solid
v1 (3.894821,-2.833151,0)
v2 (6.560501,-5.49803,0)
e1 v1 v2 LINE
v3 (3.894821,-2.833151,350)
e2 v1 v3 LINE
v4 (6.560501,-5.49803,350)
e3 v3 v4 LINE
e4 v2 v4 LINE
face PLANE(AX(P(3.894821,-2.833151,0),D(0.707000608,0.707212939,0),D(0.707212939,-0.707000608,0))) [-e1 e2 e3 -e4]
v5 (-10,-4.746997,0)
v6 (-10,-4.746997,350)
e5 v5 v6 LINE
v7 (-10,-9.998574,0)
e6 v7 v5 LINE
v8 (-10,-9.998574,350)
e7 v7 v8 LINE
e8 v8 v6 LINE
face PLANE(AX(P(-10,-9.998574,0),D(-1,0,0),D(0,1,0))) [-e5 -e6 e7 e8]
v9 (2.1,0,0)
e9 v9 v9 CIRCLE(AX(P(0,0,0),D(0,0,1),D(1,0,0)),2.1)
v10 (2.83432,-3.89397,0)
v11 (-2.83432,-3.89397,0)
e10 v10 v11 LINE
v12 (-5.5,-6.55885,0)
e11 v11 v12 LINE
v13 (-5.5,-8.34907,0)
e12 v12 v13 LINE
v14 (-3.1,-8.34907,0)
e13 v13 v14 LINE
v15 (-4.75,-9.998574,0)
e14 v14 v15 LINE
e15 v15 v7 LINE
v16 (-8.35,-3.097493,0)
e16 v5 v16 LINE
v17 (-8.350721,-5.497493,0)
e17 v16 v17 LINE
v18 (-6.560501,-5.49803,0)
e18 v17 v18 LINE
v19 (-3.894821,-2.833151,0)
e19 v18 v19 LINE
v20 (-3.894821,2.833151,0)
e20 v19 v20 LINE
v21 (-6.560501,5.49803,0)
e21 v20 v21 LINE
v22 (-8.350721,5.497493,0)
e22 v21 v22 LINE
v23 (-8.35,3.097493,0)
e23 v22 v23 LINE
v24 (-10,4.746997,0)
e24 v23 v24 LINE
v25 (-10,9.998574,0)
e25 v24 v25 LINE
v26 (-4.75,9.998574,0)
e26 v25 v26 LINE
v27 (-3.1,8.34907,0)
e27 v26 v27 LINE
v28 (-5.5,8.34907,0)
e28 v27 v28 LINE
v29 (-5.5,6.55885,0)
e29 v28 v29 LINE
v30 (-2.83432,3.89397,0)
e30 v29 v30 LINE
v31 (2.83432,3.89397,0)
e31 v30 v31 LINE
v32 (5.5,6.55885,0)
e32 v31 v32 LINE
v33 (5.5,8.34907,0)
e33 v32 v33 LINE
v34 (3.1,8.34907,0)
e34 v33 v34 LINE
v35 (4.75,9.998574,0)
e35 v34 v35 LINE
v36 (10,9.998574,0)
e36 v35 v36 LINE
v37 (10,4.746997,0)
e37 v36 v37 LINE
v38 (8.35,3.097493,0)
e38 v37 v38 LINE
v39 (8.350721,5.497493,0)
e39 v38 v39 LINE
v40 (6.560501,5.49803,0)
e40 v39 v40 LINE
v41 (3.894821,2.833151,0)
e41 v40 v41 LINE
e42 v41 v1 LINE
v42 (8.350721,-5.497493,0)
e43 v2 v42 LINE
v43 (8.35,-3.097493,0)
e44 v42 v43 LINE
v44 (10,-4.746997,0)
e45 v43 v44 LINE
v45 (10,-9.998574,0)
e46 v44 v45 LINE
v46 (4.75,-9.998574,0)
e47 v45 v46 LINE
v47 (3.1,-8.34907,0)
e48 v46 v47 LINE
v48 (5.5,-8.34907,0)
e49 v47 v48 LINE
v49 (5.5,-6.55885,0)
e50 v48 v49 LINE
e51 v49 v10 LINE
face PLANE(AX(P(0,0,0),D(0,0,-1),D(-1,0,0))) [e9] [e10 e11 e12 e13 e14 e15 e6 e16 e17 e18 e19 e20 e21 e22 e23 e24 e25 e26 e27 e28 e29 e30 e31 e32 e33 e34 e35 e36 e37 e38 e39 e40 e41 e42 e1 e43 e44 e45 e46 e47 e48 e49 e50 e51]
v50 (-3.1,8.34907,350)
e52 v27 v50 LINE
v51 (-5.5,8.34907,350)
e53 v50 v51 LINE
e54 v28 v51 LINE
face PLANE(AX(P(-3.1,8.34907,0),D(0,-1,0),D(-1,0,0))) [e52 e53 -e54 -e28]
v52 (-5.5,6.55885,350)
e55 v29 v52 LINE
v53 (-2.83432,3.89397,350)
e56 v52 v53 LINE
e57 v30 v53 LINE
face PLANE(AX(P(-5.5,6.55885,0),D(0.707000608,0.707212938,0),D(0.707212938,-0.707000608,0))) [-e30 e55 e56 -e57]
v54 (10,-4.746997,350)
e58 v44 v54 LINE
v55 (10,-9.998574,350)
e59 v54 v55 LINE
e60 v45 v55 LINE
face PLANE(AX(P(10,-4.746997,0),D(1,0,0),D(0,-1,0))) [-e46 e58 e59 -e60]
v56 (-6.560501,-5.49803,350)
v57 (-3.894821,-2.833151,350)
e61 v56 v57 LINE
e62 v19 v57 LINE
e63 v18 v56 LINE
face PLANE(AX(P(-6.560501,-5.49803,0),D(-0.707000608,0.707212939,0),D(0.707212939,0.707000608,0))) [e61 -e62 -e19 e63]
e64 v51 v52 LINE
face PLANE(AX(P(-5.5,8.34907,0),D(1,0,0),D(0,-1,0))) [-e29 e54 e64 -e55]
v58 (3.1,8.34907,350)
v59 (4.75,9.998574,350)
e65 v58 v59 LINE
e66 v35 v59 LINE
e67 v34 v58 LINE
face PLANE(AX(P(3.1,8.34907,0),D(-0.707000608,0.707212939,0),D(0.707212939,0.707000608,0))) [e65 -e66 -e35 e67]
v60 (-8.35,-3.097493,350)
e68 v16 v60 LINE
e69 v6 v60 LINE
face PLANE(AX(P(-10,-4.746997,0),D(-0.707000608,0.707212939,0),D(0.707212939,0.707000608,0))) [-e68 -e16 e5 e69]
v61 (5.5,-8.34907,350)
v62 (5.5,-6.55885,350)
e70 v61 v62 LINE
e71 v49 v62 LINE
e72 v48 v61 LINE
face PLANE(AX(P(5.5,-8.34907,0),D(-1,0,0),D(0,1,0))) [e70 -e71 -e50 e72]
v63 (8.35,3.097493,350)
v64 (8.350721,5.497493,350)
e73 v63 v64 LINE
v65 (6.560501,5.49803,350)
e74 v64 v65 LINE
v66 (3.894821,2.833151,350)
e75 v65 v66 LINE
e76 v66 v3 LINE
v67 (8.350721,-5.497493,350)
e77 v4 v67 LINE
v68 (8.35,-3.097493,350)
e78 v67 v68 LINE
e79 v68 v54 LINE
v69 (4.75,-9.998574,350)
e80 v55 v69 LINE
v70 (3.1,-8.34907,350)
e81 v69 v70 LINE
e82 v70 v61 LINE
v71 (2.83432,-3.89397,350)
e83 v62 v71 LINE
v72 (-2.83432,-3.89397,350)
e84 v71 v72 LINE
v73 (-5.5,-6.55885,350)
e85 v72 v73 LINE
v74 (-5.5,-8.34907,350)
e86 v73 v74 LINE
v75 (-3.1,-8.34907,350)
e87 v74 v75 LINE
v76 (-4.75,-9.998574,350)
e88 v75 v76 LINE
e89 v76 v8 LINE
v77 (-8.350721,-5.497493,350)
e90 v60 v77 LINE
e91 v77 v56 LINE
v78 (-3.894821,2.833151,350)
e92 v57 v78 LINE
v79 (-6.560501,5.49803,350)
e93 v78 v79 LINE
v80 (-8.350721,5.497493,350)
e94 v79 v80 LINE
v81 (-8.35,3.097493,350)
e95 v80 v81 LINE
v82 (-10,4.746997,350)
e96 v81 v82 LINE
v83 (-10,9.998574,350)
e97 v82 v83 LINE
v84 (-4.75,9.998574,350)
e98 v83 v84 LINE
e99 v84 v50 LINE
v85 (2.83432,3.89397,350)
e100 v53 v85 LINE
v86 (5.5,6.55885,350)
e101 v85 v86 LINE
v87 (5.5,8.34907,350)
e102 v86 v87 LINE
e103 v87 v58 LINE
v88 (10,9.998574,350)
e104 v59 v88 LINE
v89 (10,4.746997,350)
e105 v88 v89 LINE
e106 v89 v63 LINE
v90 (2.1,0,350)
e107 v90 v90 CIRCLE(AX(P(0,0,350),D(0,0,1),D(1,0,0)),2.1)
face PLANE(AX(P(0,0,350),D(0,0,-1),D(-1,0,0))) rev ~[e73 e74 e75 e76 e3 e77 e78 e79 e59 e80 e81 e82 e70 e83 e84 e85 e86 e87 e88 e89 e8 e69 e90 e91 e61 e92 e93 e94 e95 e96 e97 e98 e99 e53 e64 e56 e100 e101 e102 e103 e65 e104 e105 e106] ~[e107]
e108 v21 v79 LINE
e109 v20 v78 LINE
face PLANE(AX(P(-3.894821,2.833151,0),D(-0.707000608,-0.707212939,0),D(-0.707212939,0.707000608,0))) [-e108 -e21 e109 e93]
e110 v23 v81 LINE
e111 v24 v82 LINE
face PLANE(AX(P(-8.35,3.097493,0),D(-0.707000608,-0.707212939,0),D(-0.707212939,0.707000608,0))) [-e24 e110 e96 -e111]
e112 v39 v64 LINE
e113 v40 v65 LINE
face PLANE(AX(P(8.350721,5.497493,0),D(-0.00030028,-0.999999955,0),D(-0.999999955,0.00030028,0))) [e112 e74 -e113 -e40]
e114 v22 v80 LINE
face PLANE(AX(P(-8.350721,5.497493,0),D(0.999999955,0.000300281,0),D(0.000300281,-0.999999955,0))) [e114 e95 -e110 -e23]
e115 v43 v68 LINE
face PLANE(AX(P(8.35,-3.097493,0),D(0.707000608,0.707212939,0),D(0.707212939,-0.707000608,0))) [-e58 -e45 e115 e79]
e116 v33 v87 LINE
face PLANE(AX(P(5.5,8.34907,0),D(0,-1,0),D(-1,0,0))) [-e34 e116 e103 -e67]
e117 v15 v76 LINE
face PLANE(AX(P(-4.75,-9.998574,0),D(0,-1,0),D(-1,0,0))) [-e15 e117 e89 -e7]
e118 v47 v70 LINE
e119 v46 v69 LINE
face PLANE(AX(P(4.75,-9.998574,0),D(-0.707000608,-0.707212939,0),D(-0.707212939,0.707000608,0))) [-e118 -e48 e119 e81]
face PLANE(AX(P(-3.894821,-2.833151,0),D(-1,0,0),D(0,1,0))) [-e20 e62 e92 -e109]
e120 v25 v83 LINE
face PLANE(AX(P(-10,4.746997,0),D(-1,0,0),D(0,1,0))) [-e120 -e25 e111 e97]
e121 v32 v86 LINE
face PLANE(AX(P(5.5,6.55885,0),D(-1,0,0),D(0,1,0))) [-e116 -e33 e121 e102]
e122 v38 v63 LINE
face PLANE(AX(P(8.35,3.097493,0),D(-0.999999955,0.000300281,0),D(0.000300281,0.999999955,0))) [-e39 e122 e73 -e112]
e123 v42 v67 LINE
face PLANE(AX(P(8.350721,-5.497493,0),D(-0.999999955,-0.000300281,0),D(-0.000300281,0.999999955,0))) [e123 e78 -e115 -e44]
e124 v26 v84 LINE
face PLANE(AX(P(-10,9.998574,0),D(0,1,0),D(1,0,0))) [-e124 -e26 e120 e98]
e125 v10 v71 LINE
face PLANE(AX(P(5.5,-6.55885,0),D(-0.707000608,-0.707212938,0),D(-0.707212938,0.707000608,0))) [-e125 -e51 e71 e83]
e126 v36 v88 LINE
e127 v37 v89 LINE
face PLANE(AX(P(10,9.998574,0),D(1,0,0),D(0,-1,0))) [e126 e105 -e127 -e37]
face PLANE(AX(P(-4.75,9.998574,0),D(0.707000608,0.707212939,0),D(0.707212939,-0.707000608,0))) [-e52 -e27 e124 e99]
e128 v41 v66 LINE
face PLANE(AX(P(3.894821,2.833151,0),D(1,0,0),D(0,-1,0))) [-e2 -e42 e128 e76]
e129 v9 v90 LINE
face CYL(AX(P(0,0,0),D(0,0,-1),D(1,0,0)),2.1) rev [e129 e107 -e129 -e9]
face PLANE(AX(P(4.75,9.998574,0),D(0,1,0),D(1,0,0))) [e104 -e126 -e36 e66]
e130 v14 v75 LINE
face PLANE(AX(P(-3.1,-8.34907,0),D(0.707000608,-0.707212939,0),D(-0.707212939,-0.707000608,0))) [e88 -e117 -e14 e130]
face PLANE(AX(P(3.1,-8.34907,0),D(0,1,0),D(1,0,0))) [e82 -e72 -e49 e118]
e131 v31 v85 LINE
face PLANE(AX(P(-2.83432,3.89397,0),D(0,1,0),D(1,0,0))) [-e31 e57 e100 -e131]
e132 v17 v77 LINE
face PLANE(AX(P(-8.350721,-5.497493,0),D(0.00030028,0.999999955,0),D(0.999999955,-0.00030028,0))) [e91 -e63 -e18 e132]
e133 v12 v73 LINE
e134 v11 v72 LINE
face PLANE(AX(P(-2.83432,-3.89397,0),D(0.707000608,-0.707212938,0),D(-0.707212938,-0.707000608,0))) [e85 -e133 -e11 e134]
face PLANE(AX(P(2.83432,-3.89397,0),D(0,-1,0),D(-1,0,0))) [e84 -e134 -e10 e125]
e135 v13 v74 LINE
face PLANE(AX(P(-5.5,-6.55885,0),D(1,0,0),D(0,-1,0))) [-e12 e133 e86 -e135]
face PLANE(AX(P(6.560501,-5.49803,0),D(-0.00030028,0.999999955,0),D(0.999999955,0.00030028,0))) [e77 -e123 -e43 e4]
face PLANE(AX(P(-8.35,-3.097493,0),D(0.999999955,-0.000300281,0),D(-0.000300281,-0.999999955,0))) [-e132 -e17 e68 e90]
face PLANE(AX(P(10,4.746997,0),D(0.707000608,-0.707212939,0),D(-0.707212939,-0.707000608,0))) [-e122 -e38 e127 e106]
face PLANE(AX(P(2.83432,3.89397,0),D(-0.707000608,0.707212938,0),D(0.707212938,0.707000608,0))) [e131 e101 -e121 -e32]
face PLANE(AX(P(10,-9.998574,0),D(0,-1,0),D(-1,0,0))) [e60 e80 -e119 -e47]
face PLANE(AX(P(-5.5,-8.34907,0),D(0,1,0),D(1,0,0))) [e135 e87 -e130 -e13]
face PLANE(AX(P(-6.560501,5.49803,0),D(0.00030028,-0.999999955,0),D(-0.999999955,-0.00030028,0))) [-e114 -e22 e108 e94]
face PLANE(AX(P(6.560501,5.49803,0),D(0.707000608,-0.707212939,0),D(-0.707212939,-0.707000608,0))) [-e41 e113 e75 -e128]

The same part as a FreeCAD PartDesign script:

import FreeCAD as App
import Part
import Sketcher


def add_polygon(sketch, points):
    """Adds a closed chain of lines whose ends are joined by coincident constraints."""
    first, n = sketch.GeometryCount, len(points)
    for a, b in zip(points, points[1:] + points[:1]):
        sketch.addGeometry(Part.LineSegment(App.Vector(*a, 0), App.Vector(*b, 0)), False)
    for i in range(n):
        sketch.addConstraint(Sketcher.Constraint("Coincident", first + i, 2, first + (i + 1) % n, 1))

doc = App.newDocument("Part")
body = doc.addObject("PartDesign::Body", "Body")

sketch1 = body.newObject("Sketcher::SketchObject", "Sketch")
sketch1.AttachmentSupport = (doc.getObject("XY_Plane"), [""])
sketch1.MapMode = "FlatFace"
add_polygon(sketch1, [(5.5, 6.6), (2.8, 3.9), (-2.8, 3.9), (-5.5, 6.6), (-5.5, 8.3), (-3.1, 8.3), (-4.8, 10), (-10, 10), (-10, 4.7), (-8.3, 3.1), (-8.4, 5.5), (-6.6, 5.5), (-3.9, 2.8), (-3.9, -2.8), (-6.6, -5.5), (-8.4, -5.5), (-8.3, -3.1), (-10, -4.7), (-10, -10), (-4.8, -10), (-3.1, -8.3), (-5.5, -8.3), (-5.5, -6.6), (-2.8, -3.9), (2.8, -3.9), (5.5, -6.6), (5.5, -8.3), (3.1, -8.3), (4.8, -10), (10, -10), (10, -4.7), (8.3, -3.1), (8.4, -5.5), (6.6, -5.5), (3.9, -2.8), (3.9, 2.8), (6.6, 5.5), (8.4, 5.5), (8.3, 3.1), (10, 4.7), (10, 10), (4.8, 10), (3.1, 8.3), (5.5, 8.3)])
sketch1.addGeometry(Part.Circle(App.Vector(0, 0, 0), App.Vector(0, 0, 1), 2.1), False)
sketch1.addConstraint(Sketcher.Constraint("Horizontal", 1))
sketch1.addConstraint(Sketcher.Constraint("Vertical", 3))
sketch1.addConstraint(Sketcher.Constraint("Horizontal", 4))
sketch1.addConstraint(Sketcher.Constraint("Horizontal", 6))
sketch1.addConstraint(Sketcher.Constraint("Vertical", 7))
sketch1.addConstraint(Sketcher.Constraint("Vertical", 12))
sketch1.addConstraint(Sketcher.Constraint("Vertical", 17))
sketch1.addConstraint(Sketcher.Constraint("Horizontal", 18))
sketch1.addConstraint(Sketcher.Constraint("Horizontal", 20))
sketch1.addConstraint(Sketcher.Constraint("Vertical", 21))
sketch1.addConstraint(Sketcher.Constraint("Horizontal", 23))
sketch1.addConstraint(Sketcher.Constraint("Vertical", 25))
sketch1.addConstraint(Sketcher.Constraint("Horizontal", 26))
sketch1.addConstraint(Sketcher.Constraint("Horizontal", 28))
sketch1.addConstraint(Sketcher.Constraint("Vertical", 29))
sketch1.addConstraint(Sketcher.Constraint("Vertical", 34))
sketch1.addConstraint(Sketcher.Constraint("Vertical", 39))
sketch1.addConstraint(Sketcher.Constraint("Horizontal", 40))
sketch1.addConstraint(Sketcher.Constraint("Horizontal", 42))
sketch1.addConstraint(Sketcher.Constraint("Vertical", 43))
sketch1.addConstraint(Sketcher.Constraint("Coincident", 44, 3, -1, 1))
sketch1.addConstraint(Sketcher.Constraint("Symmetric", 0, 2, 22, 2, -1, 1))
sketch1.addConstraint(Sketcher.Constraint("Symmetric", 2, 2, 24, 2, -1, 1))
sketch1.addConstraint(Sketcher.Constraint("Symmetric", 4, 2, 26, 2, -1, 1))
sketch1.addConstraint(Sketcher.Constraint("Symmetric", 5, 2, 27, 2, -1, 1))
sketch1.addConstraint(Sketcher.Constraint("Symmetric", 7, 2, 29, 2, -1, 1))
sketch1.addConstraint(Sketcher.Constraint("Symmetric", 8, 2, 30, 2, -1, 1))
sketch1.addConstraint(Sketcher.Constraint("Symmetric", 9, 2, 31, 2, -1, 1))
sketch1.addConstraint(Sketcher.Constraint("Symmetric", 10, 2, 32, 2, -1, 1))
sketch1.addConstraint(Sketcher.Constraint("Symmetric", 11, 2, 33, 2, -1, 1))
sketch1.addConstraint(Sketcher.Constraint("Symmetric", 13, 2, 35, 2, -1, 1))
sketch1.addConstraint(Sketcher.Constraint("Symmetric", 14, 2, 36, 2, -1, 1))
sketch1.addConstraint(Sketcher.Constraint("Symmetric", 15, 2, 37, 2, -1, 1))
sketch1.addConstraint(Sketcher.Constraint("Symmetric", 16, 2, 38, 2, -1, 1))
sketch1.addConstraint(Sketcher.Constraint("Symmetric", 18, 2, 40, 2, -1, 1))
sketch1.addConstraint(Sketcher.Constraint("Symmetric", 19, 2, 41, 2, -1, 1))
sketch1.addConstraint(Sketcher.Constraint("Symmetric", 21, 2, 43, 2, -1, 1))
sketch1.addConstraint(Sketcher.Constraint("Symmetric", 21, 2, 24, 2, -2))
sketch1.addConstraint(Sketcher.Constraint("Symmetric", 19, 2, 26, 2, -2))
sketch1.addConstraint(Sketcher.Constraint("Symmetric", 18, 2, 27, 2, -2))
sketch1.addConstraint(Sketcher.Constraint("Symmetric", 16, 2, 29, 2, -2))
sketch1.addConstraint(Sketcher.Constraint("Symmetric", 15, 2, 30, 2, -2))
sketch1.addConstraint(Sketcher.Constraint("Symmetric", 14, 2, 31, 2, -2))
sketch1.addConstraint(Sketcher.Constraint("Symmetric", 13, 2, 32, 2, -2))
sketch1.addConstraint(Sketcher.Constraint("Parallel", 2, 5))
sketch1.addConstraint(Sketcher.Constraint("Parallel", 5, 8))
sketch1.addConstraint(Sketcher.Constraint("Perpendicular", 9, 10))
sketch1.addConstraint(Sketcher.Constraint("Parallel", 8, 11))
sketch1.addConstraint(Sketcher.Constraint("Parallel", 0, 13))
sketch1.addConstraint(Sketcher.Constraint("Parallel", 13, 16))
sketch1.addConstraint(Sketcher.Constraint("Parallel", 11, 24))
sketch1.addConstraint(Sketcher.Constraint("Parallel", 22, 35))
sketch1.addConstraint(Sketcher.Constraint("Equal", 5, 8))
sketch1.addConstraint(Sketcher.Constraint("Equal", 2, 11))
sketch1.addConstraint(Sketcher.Constraint("Diameter", 44, 4.2))
sketch1.addConstraint(Sketcher.Constraint("DistanceX", 4, 1, 4, 2, 2.4))
sketch1.addConstraint(Sketcher.Constraint("DistanceX", 6, 2, -1, 1, 10.0))
sketch1.addConstraint(Sketcher.Constraint("Distance", 9, 2.4))
sketch1.addConstraint(Sketcher.Constraint("DistanceX", 6, 2, 6, 1, 5.25))
sketch1.addConstraint(Sketcher.Constraint("DistanceX", 2, 2, -1, 1, 5.5))
sketch1.addConstraint(Sketcher.Constraint("DistanceY", 12, 2, 12, 1, 5.666302))
sketch1.addConstraint(Sketcher.Constraint("DistanceY", 13, 2, 1, 2, 9.392001))
sketch1.addConstraint(Sketcher.Constraint("DistanceX", 1, 2, 1, 1, 5.668641))
sketch1.addConstraint(Sketcher.Constraint("DistanceY", 3, 1, 3, 2, 1.79022))
sketch1.addConstraint(Sketcher.Constraint("DistanceX", 10, 2, -1, 1, 6.560501))
sketch1.addConstraint(Sketcher.Constraint("DistanceY", 1, 2, 3, 2, 4.455099))
sketch1.addConstraint(Sketcher.Constraint("DistanceX", 14, 2, 12, 2, 4.455899))
pad1 = body.newObject("PartDesign::Pad", "Pad")
pad1.Profile = sketch1
pad1.Length = 350

doc.recompute()
